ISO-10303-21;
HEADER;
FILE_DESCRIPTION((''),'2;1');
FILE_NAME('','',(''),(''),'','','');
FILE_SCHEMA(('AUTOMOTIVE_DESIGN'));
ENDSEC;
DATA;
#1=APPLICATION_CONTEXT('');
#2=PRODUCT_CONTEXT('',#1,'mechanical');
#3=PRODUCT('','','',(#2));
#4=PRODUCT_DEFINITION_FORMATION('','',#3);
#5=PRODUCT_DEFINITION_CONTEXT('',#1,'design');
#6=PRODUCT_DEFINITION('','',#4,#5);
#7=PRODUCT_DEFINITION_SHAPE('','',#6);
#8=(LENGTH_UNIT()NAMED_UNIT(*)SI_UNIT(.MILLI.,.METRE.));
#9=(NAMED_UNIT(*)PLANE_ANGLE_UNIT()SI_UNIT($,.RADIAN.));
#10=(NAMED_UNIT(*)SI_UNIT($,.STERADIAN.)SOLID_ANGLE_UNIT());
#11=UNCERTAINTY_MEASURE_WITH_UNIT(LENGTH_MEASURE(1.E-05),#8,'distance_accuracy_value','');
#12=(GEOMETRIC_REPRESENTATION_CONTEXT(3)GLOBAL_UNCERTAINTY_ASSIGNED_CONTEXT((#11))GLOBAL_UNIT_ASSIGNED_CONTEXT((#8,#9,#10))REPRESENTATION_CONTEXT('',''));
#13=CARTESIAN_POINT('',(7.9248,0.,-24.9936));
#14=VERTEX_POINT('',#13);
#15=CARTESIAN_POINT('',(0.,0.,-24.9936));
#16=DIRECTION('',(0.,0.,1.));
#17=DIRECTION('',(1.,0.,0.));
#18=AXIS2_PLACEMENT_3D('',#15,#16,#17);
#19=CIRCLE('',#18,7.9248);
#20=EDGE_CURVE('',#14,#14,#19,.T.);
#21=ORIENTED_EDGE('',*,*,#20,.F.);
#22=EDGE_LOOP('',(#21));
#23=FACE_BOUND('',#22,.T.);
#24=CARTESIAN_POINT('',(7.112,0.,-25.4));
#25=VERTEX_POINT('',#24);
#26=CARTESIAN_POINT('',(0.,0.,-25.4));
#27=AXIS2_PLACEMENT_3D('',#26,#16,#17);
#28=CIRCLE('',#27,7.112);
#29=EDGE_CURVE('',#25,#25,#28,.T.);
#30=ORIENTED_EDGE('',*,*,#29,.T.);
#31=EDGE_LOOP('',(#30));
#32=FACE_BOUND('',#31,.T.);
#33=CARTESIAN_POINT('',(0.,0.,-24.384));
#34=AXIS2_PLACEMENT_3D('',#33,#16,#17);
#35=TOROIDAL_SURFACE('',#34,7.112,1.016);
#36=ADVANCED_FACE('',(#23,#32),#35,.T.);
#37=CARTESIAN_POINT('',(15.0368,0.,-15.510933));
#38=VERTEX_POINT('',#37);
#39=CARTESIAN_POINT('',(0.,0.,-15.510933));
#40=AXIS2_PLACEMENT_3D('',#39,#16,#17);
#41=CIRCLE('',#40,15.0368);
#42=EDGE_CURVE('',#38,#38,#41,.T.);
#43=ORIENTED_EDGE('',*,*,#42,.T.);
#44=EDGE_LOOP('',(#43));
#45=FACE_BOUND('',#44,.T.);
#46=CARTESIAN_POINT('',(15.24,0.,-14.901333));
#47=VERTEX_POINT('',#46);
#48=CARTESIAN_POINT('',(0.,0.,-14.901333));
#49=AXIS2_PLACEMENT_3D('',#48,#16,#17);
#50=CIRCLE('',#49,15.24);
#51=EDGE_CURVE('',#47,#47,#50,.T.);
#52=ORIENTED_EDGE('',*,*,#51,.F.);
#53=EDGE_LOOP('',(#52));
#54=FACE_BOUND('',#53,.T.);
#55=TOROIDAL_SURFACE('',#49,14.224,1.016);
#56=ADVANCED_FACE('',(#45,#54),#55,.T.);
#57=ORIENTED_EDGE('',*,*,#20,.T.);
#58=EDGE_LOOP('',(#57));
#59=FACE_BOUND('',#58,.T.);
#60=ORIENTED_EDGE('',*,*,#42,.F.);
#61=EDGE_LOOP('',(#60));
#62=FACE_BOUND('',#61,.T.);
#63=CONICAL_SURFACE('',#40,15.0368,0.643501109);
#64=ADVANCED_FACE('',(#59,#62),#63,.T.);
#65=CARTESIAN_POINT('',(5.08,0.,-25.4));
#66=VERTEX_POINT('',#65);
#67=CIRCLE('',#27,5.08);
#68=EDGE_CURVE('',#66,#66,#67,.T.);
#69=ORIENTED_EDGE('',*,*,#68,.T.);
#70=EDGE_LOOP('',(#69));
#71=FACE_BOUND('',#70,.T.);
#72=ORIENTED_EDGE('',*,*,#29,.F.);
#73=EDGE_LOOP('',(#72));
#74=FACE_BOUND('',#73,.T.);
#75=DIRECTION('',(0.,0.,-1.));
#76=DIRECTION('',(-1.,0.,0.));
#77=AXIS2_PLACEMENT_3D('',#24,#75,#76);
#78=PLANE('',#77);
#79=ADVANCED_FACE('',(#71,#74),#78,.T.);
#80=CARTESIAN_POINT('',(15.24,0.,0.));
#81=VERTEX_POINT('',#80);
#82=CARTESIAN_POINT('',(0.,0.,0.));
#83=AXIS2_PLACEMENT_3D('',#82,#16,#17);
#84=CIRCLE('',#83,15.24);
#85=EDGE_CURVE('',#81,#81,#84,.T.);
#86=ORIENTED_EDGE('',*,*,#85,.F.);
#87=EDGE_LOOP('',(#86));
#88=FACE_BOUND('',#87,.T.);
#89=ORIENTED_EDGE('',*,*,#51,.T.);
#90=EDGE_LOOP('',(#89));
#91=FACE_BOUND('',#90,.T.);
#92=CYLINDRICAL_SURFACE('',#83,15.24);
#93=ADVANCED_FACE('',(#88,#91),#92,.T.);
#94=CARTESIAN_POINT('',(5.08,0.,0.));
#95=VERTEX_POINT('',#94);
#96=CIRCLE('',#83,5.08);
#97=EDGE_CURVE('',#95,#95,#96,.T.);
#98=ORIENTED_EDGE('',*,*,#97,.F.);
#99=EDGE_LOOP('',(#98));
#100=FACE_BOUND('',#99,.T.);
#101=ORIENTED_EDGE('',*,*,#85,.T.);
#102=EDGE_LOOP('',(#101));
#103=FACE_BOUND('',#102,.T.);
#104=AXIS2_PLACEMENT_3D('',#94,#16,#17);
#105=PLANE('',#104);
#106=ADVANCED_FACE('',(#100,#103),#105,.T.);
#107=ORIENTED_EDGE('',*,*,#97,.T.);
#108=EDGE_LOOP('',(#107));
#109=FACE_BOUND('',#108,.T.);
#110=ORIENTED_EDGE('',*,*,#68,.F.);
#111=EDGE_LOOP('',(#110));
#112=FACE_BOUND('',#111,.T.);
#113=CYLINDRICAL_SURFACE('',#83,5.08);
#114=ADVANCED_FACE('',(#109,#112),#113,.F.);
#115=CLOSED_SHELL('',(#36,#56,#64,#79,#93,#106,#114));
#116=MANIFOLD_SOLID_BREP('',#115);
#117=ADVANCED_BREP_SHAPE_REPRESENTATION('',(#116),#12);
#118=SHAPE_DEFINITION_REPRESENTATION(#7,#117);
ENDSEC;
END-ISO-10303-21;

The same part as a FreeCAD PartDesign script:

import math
import FreeCAD as App
import Part
import Sketcher
Q = App.Units.Quantity

doc = App.newDocument("Part")
body = doc.addObject("PartDesign::Body", "Body")

# Sketch on XZ plane
sketch1 = body.newObject("Sketcher::SketchObject", "Sketch")
sketch1.AttachmentSupport = (doc.getObject("XZ_Plane"), [""])
sketch1.MapMode = "FlatFace"
sketch1.addGeometry([
    Part.LineSegment(App.Vector(5.1, -25.4, 0), App.Vector(5.1, 0, 0)),  # 0
    Part.LineSegment(App.Vector(5.1, 0, 0), App.Vector(15.2, 0, 0)),  # 1
    Part.LineSegment(App.Vector(15.2, 0, 0), App.Vector(15.2, -14.9, 0)),  # 2
    Part.ArcOfCircle(Part.Circle(App.Vector(14.2, -14.9, 0), App.Vector(0, 0, 1), 1), math.radians(-37), math.radians(0)),  # 3
    Part.LineSegment(App.Vector(15, -15.5, 0), App.Vector(7.9, -25, 0)),  # 4
    Part.ArcOfCircle(Part.Circle(App.Vector(7.1, -24.4, 0), App.Vector(0, 0, 1), 1), math.radians(-90), math.radians(-37)),  # 5
    Part.LineSegment(App.Vector(7.1, -25.4, 0), App.Vector(5.1, -25.4, 0)),  # 6
], False)
sketch1.addConstraint([
    Sketcher.Constraint("Coincident", 0, 2, 1, 1),
    Sketcher.Constraint("Coincident", 1, 2, 2, 1),
    Sketcher.Constraint("Tangent", 2, 2, 3, 2),
    Sketcher.Constraint("Tangent", 3, 1, 4, 1),
    Sketcher.Constraint("Tangent", 4, 2, 5, 2),
    Sketcher.Constraint("Tangent", 5, 1, 6, 1),
    Sketcher.Constraint("Coincident", 6, 2, 0, 1),
    Sketcher.Constraint("Vertical", 0),
    Sketcher.Constraint("Horizontal", 1),
    Sketcher.Constraint("Vertical", 2),
    Sketcher.Constraint("Horizontal", 6),
    Sketcher.Constraint("Equal", 3, 5),
    Sketcher.Constraint("PointOnObject", 0, 2, -1),
    Sketcher.Constraint("DistanceY", 0, 1, 0, 2, Q("1 in")),
    Sketcher.Constraint("Radius", 3, Q("0.04 in")),
    Sketcher.Constraint("DistanceX", 1, 1, 1, 2, Q("0.4 in")),
    Sketcher.Constraint("DistanceX", 6, 2, 6, 1, Q("0.08 in")),
    Sketcher.Constraint("DistanceX", -1, 1, 0, 2, Q("0.2 in")),
    Sketcher.Constraint("DistanceX", -1, 1, 3, 1, Q("0.592 in")),
])
revolution = body.newObject("PartDesign::Revolution", "Revolution")
revolution.Profile = sketch1
revolution.ReferenceAxis = (sketch1, ["V_Axis"])
revolution.Angle = 360

doc.recompute()
